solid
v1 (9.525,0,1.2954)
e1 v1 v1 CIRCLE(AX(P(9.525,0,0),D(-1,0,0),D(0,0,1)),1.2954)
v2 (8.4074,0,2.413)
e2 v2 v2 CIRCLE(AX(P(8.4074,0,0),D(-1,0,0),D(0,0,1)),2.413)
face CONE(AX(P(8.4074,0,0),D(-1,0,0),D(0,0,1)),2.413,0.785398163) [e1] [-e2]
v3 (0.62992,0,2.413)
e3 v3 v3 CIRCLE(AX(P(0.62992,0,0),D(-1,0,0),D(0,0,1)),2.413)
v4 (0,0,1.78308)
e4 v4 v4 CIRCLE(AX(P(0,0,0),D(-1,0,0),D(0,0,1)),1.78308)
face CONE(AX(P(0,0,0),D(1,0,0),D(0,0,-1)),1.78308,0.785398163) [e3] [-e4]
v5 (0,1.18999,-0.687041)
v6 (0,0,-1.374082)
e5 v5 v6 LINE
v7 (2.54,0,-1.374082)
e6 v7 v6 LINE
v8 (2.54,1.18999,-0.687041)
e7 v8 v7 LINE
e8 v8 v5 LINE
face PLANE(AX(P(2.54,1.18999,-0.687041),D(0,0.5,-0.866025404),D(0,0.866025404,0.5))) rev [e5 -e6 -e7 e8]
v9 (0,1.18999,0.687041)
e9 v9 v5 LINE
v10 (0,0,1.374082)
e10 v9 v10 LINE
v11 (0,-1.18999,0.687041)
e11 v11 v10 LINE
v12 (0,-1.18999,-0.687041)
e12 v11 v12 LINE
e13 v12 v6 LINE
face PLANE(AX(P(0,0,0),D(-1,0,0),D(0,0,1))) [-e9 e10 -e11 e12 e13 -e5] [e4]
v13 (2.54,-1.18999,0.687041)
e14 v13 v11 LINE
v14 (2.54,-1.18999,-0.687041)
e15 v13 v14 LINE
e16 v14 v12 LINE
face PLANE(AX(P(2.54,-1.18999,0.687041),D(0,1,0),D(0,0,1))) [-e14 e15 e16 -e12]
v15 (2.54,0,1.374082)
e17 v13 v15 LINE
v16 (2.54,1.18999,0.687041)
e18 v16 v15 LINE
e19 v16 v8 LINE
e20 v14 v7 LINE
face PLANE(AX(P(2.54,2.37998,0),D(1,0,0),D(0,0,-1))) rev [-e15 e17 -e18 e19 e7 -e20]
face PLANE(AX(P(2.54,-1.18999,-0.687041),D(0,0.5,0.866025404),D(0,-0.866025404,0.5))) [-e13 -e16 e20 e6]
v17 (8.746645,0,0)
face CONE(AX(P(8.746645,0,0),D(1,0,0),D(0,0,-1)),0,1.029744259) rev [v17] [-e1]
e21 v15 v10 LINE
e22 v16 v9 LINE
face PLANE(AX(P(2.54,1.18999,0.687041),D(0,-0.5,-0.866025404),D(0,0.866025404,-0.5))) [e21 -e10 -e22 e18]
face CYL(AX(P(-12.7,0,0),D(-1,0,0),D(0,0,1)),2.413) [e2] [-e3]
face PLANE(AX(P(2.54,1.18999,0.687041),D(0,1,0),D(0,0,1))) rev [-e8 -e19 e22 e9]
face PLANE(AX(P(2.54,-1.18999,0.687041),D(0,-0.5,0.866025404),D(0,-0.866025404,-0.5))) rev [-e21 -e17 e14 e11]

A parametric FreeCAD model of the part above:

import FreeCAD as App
import Part
import Sketcher
from FreeCAD import Vector
Q = App.Units.Quantity

doc = App.newDocument("Part")
body = doc.addObject("PartDesign::Body", "Body")

# Sketch on XY plane
sketch1 = body.newObject("Sketcher::SketchObject", "Sketch")
sketch1.AttachmentSupport = (doc.getObject("XY_Plane"), [""])
sketch1.MapMode = "FlatFace"
sketch1.addGeometry([
    Part.LineSegment(Vector(0, 1.78308, 0), Vector(0, 0, 0)),  # 0
    Part.LineSegment(Vector(0, 0, 0), Vector(8.746645, 0, 0)),  # 1
    Part.LineSegment(Vector(8.746645, 0, 0), Vector(9.525, 1.2954, 0)),  # 2
    Part.LineSegment(Vector(9.525, 1.2954, 0), Vector(8.4074, 2.413, 0)),  # 3
    Part.LineSegment(Vector(8.4074, 2.413, 0), Vector(0.62992, 2.413, 0)),  # 4
    Part.LineSegment(Vector(0.62992, 2.413, 0), Vector(0, 1.78308, 0)),  # 5
], False)
sketch1.addConstraint([
    Sketcher.Constraint("Coincident", 0, 2, 1, 1),
    Sketcher.Constraint("Coincident", 1, 2, 2, 1),
    Sketcher.Constraint("Coincident", 2, 2, 3, 1),
    Sketcher.Constraint("Coincident", 3, 2, 4, 1),
    Sketcher.Constraint("Coincident", 4, 2, 5, 1),
    Sketcher.Constraint("Coincident", 5, 2, 0, 1),
    Sketcher.Constraint("Vertical", 0),
    Sketcher.Constraint("Horizontal", 1),
    Sketcher.Constraint("Horizontal", 4),
    Sketcher.Constraint("Coincident", 0, 2, -1, 1),
    Sketcher.Constraint("Perpendicular", 3, 5),
    Sketcher.Constraint("Angle", 2, Q("59 deg")),
    Sketcher.Constraint("Angle", 3, Q("135 deg")),
    Sketcher.Constraint("DistanceX", 4, 2, 4, 1, Q("0.3062 in")),
    Sketcher.Constraint("DistanceY", 0, 2, 0, 1, Q("0.0702 in")),
    Sketcher.Constraint("DistanceX", -1, 1, 2, 2, Q("0.375 in")),
    Sketcher.Constraint("DistanceY", -1, 1, 2, 2, Q("0.051 in")),
])
revolution = body.newObject("PartDesign::Revolution", "Revolution")
revolution.Profile = sketch1
revolution.ReferenceAxis = (sketch1, ["H_Axis"])
revolution.Angle = 360

# Sketch on YZ plane
sketch2 = body.newObject("Sketcher::SketchObject", "Sketch001")
sketch2.AttachmentSupport = (doc.getObject("YZ_Plane"), [""])
sketch2.MapMode = "FlatFace"
sketch2.addGeometry([
    Part.LineSegment(Vector(1.18999, 0.687041, 0), Vector(1.18999, -0.687041, 0)),  # 0
    Part.LineSegment(Vector(1.18999, -0.687041, 0), Vector(0, -1.374082, 0)),  # 1
    Part.LineSegment(Vector(0, -1.374082, 0), Vector(-1.18999, -0.687041, 0)),  # 2
    Part.LineSegment(Vector(-1.18999, -0.687041, 0), Vector(-1.18999, 0.687041, 0)),  # 3
    Part.LineSegment(Vector(-1.18999, 0.687041, 0), Vector(0, 1.374082, 0)),  # 4
    Part.LineSegment(Vector(0, 1.374082, 0), Vector(1.18999, 0.687041, 0)),  # 5
], False)
sketch2.addConstraint([
    Sketcher.Constraint("Coincident", 0, 2, 1, 1),
    Sketcher.Constraint("Coincident", 1, 2, 2, 1),
    Sketcher.Constraint("Coincident", 2, 2, 3, 1),
    Sketcher.Constraint("Coincident", 3, 2, 4, 1),
    Sketcher.Constraint("Coincident", 4, 2, 5, 1),
    Sketcher.Constraint("Coincident", 5, 2, 0, 1),
    Sketcher.Constraint("Vertical", 0),
    Sketcher.Constraint("Vertical", 3),
    Sketcher.Constraint("Symmetric", 0, 2, 3, 2, -1, 1),
    Sketcher.Constraint("Symmetric", 1, 2, 4, 2, -1, 1),
    Sketcher.Constraint("PointOnObject", 1, 2, -2),
    Sketcher.Constraint("Parallel", 2, 5),
    Sketcher.Constraint("Horizontal", 0, 2, 2, 2),
    Sketcher.Constraint("Angle", 1, Q("-150 deg")),
    Sketcher.Constraint("DistanceX", 2, 2, 0, 2, Q("0.0937 in")),
    Sketcher.Constraint("DistanceY", 0, 2, 0, 1, Q("1.374082 mm")),
])
pocket1 = body.newObject("PartDesign::Pocket", "Pocket")
pocket1.Profile = sketch2
pocket1.Length = Q("0.1 in")
pocket1.Reversed = True

doc.recompute()
